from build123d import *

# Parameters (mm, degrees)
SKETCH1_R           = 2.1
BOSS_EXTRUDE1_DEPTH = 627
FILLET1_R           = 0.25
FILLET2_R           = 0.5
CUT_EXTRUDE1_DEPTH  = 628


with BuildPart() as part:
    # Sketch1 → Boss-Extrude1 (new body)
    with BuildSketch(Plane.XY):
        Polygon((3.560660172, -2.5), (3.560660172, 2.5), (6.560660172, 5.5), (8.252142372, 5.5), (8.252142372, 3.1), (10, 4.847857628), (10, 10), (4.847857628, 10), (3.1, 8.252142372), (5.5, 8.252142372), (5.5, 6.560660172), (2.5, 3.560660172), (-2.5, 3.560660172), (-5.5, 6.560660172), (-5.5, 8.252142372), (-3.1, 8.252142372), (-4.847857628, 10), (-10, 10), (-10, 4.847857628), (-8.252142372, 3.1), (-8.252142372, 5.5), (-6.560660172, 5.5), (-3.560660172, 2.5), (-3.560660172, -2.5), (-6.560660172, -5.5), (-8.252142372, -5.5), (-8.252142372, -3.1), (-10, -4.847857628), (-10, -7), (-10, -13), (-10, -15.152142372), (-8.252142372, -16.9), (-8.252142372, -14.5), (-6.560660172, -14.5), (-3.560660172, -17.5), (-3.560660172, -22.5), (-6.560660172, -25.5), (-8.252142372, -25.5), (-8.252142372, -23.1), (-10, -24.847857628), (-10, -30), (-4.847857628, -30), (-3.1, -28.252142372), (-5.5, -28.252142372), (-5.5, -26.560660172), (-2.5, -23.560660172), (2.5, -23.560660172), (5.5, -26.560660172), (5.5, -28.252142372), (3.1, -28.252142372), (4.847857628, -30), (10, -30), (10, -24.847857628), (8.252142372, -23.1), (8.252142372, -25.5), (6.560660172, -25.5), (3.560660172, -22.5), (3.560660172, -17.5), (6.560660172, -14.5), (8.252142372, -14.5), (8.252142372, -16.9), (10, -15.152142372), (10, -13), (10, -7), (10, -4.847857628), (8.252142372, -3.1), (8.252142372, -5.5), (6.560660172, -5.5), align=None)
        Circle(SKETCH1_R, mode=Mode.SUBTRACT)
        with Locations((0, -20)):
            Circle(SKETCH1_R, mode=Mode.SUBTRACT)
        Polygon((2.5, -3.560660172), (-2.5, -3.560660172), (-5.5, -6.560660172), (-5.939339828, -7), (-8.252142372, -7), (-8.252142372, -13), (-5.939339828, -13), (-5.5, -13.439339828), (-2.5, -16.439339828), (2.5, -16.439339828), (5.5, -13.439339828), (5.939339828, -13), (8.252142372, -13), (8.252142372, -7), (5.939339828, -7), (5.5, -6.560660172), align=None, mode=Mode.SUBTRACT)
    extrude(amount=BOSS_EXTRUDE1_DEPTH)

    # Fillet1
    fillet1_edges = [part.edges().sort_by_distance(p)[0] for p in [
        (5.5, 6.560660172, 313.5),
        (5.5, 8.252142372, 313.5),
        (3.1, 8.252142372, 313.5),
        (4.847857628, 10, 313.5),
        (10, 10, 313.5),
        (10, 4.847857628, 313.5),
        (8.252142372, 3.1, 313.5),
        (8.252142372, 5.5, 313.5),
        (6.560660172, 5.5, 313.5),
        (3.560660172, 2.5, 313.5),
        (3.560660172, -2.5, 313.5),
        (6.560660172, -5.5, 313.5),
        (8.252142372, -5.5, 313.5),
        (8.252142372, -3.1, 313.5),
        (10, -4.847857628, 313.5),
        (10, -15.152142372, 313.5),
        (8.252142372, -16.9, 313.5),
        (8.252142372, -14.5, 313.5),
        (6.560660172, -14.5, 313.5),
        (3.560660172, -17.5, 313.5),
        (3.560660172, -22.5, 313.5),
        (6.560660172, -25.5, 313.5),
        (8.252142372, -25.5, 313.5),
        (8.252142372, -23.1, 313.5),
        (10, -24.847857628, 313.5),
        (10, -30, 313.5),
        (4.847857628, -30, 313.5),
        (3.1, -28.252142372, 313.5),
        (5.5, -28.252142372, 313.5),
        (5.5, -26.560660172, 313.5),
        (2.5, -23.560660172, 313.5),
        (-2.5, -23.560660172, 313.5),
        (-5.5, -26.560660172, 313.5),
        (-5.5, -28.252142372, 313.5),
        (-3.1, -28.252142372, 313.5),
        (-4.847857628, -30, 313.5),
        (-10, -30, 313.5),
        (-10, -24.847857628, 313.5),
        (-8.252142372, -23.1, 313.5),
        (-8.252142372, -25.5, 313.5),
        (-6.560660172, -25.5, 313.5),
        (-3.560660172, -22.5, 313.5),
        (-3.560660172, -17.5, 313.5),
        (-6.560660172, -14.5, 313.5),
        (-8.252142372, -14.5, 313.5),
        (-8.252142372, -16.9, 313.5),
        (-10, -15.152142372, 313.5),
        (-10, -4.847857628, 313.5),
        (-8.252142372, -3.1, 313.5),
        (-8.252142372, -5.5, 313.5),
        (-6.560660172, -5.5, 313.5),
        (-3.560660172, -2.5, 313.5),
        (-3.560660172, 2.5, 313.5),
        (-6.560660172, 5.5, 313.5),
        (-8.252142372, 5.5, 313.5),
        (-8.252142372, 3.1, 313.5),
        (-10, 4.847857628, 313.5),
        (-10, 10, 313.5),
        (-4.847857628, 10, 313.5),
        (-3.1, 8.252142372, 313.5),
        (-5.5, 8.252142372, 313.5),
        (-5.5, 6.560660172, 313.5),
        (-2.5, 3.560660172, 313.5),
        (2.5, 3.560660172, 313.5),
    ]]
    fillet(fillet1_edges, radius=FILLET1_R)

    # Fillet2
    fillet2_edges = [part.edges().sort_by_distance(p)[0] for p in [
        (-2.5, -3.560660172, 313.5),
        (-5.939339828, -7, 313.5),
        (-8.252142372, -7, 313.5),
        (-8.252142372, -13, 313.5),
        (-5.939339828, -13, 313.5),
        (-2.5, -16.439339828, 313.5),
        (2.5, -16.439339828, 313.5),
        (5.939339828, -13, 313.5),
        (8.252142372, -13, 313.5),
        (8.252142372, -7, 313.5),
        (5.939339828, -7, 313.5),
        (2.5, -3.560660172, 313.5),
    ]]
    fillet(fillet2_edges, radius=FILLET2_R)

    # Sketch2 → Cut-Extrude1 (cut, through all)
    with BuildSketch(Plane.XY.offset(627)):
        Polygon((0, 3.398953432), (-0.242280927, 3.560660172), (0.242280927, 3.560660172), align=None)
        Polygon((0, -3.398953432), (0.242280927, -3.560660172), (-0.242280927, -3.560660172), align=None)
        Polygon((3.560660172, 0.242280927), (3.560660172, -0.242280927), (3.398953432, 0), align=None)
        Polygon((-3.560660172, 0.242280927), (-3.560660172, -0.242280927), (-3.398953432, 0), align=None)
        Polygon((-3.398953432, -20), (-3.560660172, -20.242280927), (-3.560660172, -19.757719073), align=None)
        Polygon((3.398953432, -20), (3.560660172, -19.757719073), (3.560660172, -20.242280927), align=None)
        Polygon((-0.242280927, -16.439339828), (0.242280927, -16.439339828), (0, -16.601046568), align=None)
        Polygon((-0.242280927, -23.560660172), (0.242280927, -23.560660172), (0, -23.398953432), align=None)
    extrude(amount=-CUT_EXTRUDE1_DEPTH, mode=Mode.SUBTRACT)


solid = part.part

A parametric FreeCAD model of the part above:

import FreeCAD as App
import Part
import Sketcher
from FreeCAD import Vector
Q = App.Units.Quantity


def edges_at(feature, points):
    """Names of the edges that pass closest to the given points."""
    edges = feature.Shape.Edges
    near = lambda p: min(range(len(edges)), key=lambda i: edges[i].distToShape(Part.Vertex(*p))[0])
    return sorted({f"Edge{near(p) + 1}" for p in points})


def add_polygon(sketch, points):
    """Adds a closed chain of lines whose ends are joined by coincident constraints."""
    first, n = sketch.GeometryCount, len(points)
    for a, b in zip(points, points[1:] + points[:1]):
        sketch.addGeometry(Part.LineSegment(App.Vector(*a, 0), App.Vector(*b, 0)), False)
    for i in range(n):
        sketch.addConstraint(Sketcher.Constraint("Coincident", first + i, 2, first + (i + 1) % n, 1))

doc = App.newDocument("Part")
params = doc.addObject("Spreadsheet::Sheet", "Params")
for row, (alias, value) in enumerate([
    ("sketch1_diameter", "4.2 mm"),
    ("sketch1_width", "5 mm"),
    ("sketch1_height", "6 mm"),
    ("sketch1_width2", "2.4 mm"),
    ("pad1_length", "627 mm"),
    ("fillet_radius", "0.25 mm"),
    ("fillet2_radius", "0.5 mm"),
], start=1):
    params.set(f"A{row}", alias)
    params.set(f"B{row}", "=" + value)
    params.setAlias(f"B{row}", alias)

body = doc.addObject("PartDesign::Body", "Body")

# Sketch on XY plane
sketch1 = body.newObject("Sketcher::SketchObject", "Sketch")
sketch1.AttachmentSupport = (doc.getObject("XY_Plane"), [""])
sketch1.MapMode = "FlatFace"
add_polygon(sketch1, [(3.6, -2.5), (3.6, 2.5), (6.6, 5.5), (8.3, 5.5), (8.3, 3.1), (10, 4.8), (10, 10), (4.8, 10), (3.1, 8.3), (5.5, 8.3), (5.5, 6.6), (2.5, 3.6), (-2.5, 3.6), (-5.5, 6.6), (-5.5, 8.3), (-3.1, 8.3), (-4.8, 10), (-10, 10), (-10, 4.8), (-8.3, 3.1), (-8.3, 5.5), (-6.6, 5.5), (-3.6, 2.5), (-3.6, -2.5), (-6.6, -5.5), (-8.3, -5.5), (-8.3, -3.1), (-10, -4.8), (-10, -15.2), (-8.3, -16.9), (-8.3, -14.5), (-6.6, -14.5), (-3.6, -17.5), (-3.6, -22.5), (-6.6, -25.5), (-8.3, -25.5), (-8.3, -23.1), (-10, -24.8), (-10, -30), (-4.8, -30), (-3.1, -28.3), (-5.5, -28.3), (-5.5, -26.6), (-2.5, -23.6), (2.5, -23.6), (5.5, -26.6), (5.5, -28.3), (3.1, -28.3), (4.8, -30), (10, -30), (10, -24.8), (8.3, -23.1), (8.3, -25.5), (6.6, -25.5), (3.6, -22.5), (3.6, -17.5), (6.6, -14.5), (8.3, -14.5), (8.3, -16.9), (10, -15.2), (10, -4.8), (8.3, -3.1), (8.3, -5.5), (6.6, -5.5)])  # lines 0-63
sketch1.addGeometry(Part.Circle(Vector(0, -20, 0), Vector(0, 0, 1), 2.1), False)  # 64
add_polygon(sketch1, [(-2.5, -3.6), (2.5, -3.6), (5.9, -7), (8.3, -7), (8.3, -13), (5.9, -13), (2.5, -16.4), (-2.5, -16.4), (-5.9, -13), (-8.3, -13), (-8.3, -7), (-5.9, -7)])  # lines 65-76
sketch1.addGeometry(Part.Circle(Vector(0, 0, 0), Vector(0, 0, 1), 2.1), False)  # 77
sketch1.addConstraint([
    Sketcher.Constraint("Vertical", 0),
    Sketcher.Constraint("Horizontal", 2),
    Sketcher.Constraint("Vertical", 3),
    Sketcher.Constraint("Vertical", 5),
    Sketcher.Constraint("Horizontal", 6),
    Sketcher.Constraint("Horizontal", 8),
    Sketcher.Constraint("Vertical", 9),
    Sketcher.Constraint("Horizontal", 11),
    Sketcher.Constraint("Vertical", 13),
    Sketcher.Constraint("Horizontal", 14),
    Sketcher.Constraint("Horizontal", 16),
    Sketcher.Constraint("Vertical", 17),
    Sketcher.Constraint("Vertical", 19),
    Sketcher.Constraint("Horizontal", 20),
    Sketcher.Constraint("Vertical", 22),
    Sketcher.Constraint("Horizontal", 24),
    Sketcher.Constraint("Vertical", 25),
    Sketcher.Constraint("Vertical", 27),
    Sketcher.Constraint("Vertical", 29),
    Sketcher.Constraint("Horizontal", 30),
    Sketcher.Constraint("Vertical", 32),
    Sketcher.Constraint("Horizontal", 34),
    Sketcher.Constraint("Vertical", 35),
    Sketcher.Constraint("Vertical", 37),
    Sketcher.Constraint("Horizontal", 38),
    Sketcher.Constraint("Horizontal", 40),
    Sketcher.Constraint("Vertical", 41),
    Sketcher.Constraint("Horizontal", 43),
    Sketcher.Constraint("Vertical", 45),
    Sketcher.Constraint("Horizontal", 46),
    Sketcher.Constraint("Horizontal", 48),
    Sketcher.Constraint("Vertical", 49),
    Sketcher.Constraint("Vertical", 51),
    Sketcher.Constraint("Horizontal", 52),
    Sketcher.Constraint("Vertical", 54),
    Sketcher.Constraint("Horizontal", 56),
    Sketcher.Constraint("Vertical", 57),
    Sketcher.Constraint("Vertical", 59),
    Sketcher.Constraint("Vertical", 61),
    Sketcher.Constraint("Horizontal", 62),
    Sketcher.Constraint("Horizontal", 65),
    Sketcher.Constraint("Horizontal", 67),
    Sketcher.Constraint("Vertical", 68),
    Sketcher.Constraint("Horizontal", 69),
    Sketcher.Constraint("Horizontal", 71),
    Sketcher.Constraint("Horizontal", 73),
    Sketcher.Constraint("Vertical", 74),
    Sketcher.Constraint("Horizontal", 75),
    Sketcher.Constraint("Coincident", 77, 3, -1, 1),
    Sketcher.Constraint("Equal", 64, 77),
    Sketcher.Constraint("Symmetric", 0, 2, 22, 2, -1, 1),
    Sketcher.Constraint("Symmetric", 1, 2, 23, 2, -1, 1),
    Sketcher.Constraint("Symmetric", 3, 2, 25, 2, -1, 1),
    Sketcher.Constraint("Symmetric", 4, 2, 26, 2, -1, 1),
    Sketcher.Constraint("Symmetric", 17, 2, 59, 2, -1, 1),
    Sketcher.Constraint("Symmetric", 18, 2, 60, 2, -1, 1),
    Sketcher.Constraint("Symmetric", 20, 2, 62, 2, -1, 1),
    Sketcher.Constraint("Symmetric", 11, 2, 65, 2, -1, 1),
    Sketcher.Constraint("Symmetric", 9, 2, 12, 2, -2),
    Sketcher.Constraint("Symmetric", 7, 2, 14, 2, -2),
    Sketcher.Constraint("Symmetric", 6, 2, 15, 2, -2),
    Sketcher.Constraint("Symmetric", 4, 2, 17, 2, -2),
    Sketcher.Constraint("Symmetric", 3, 2, 18, 2, -2),
    Sketcher.Constraint("Symmetric", 1, 2, 20, 2, -2),
    Sketcher.Constraint("Symmetric", 41, 2, 44, 2, -2),
    Sketcher.Constraint("Symmetric", 39, 2, 46, 2, -2),
    Sketcher.Constraint("Symmetric", 38, 2, 47, 2, -2),
    Sketcher.Constraint("Symmetric", 36, 2, 49, 2, -2),
    Sketcher.Constraint("Symmetric", 35, 2, 50, 2, -2),
    Sketcher.Constraint("Symmetric", 33, 2, 52, 2, -2),
    Sketcher.Constraint("Symmetric", 32, 2, 53, 2, -2),
    Sketcher.Constraint("Symmetric", 30, 2, 55, 2, -2),
    Sketcher.Constraint("Symmetric", 28, 2, 57, 2, -2),
    Sketcher.Constraint("Symmetric", 69, 2, 72, 2, -2),
    Sketcher.Constraint("Symmetric", 67, 2, 74, 2, -2),
    Sketcher.Constraint("PointOnObject", 64, 3, -2),
    Sketcher.Constraint("Parallel", 1, 4),
    Sketcher.Constraint("Parallel", 4, 7),
    Sketcher.Constraint("Parallel", 7, 10),
    Sketcher.Constraint("Perpendicular", 10, 12),
    Sketcher.Constraint("Parallel", 12, 15),
    Sketcher.Constraint("Parallel", 18, 21),
    Sketcher.Constraint("Perpendicular", 26, 28),
    Sketcher.Constraint("Parallel", 28, 31),
    Sketcher.Constraint("Perpendicular", 31, 33),
    Sketcher.Constraint("Parallel", 33, 36),
    Sketcher.Constraint("Parallel", 36, 39),
    Sketcher.Constraint("Parallel", 39, 42),
    Sketcher.Constraint("Perpendicular", 42, 44),
    Sketcher.Constraint("Perpendicular", 53, 55),
    Sketcher.Constraint("Parallel", 55, 58),
    Sketcher.Constraint("Parallel", 60, 63),
    Sketcher.Constraint("Parallel", 63, 66),
    Sketcher.Constraint("Perpendicular", 66, 70),
    Sketcher.Constraint("Perpendicular", 70, 72),
    Sketcher.Constraint("Perpendicular", 72, 76),
    Sketcher.Constraint("Vertical", 25, 2, 28, 2),
    Sketcher.Constraint("Vertical", 23, 2, 30, 2),
    Sketcher.Constraint("Vertical", 22, 2, 31, 2),
    Sketcher.Constraint("Vertical", 30, 2, 33, 2),
    Sketcher.Constraint("Vertical", 29, 2, 34, 2),
    Sketcher.Constraint("Vertical", 27, 2, 36, 2),
    Sketcher.Constraint("Vertical", 15, 2, 38, 2),
    Sketcher.Constraint("Vertical", 14, 2, 39, 2),
    Sketcher.Constraint("Vertical", 13, 2, 40, 2),
    Sketcher.Constraint("Vertical", 11, 2, 42, 2),
    Sketcher.Constraint("Vertical", 61, 2, 67, 2),
    Sketcher.Constraint("Vertical", 66, 2, 69, 2),
    Sketcher.Constraint("Vertical", 65, 2, 70, 2),
    Sketcher.Constraint("Vertical", 72, 2, 75, 2),
    Sketcher.Constraint("Equal", 71, 0),
    Sketcher.Constraint("Equal", 46, 3),
    Sketcher.Constraint("Equal", 48, 5),
    Sketcher.Constraint("Equal", 62, 9),
    Sketcher.Constraint("Equal", 25, 29),
    Sketcher.Constraint("Equal", 22, 32),
    Sketcher.Constraint("Equal", 29, 35),
    Sketcher.Constraint("Equal", 17, 37),
    Sketcher.Constraint("Equal", 13, 41),
    Sketcher.Constraint("Equal", 4, 7),
    Sketcher.Constraint("Equal", 1, 10),
    Sketcher.Constraint("Diameter", 64, Q("4.2 mm")),
    Sketcher.Constraint("DistanceX", 11, 2, 11, 1, Q("5 mm")),
    Sketcher.Constraint("DistanceY", 68, 2, 68, 1, Q("6 mm")),
    Sketcher.Constraint("DistanceX", 8, 1, 8, 2, Q("2.4 mm")),
    Sketcher.Constraint("DistanceY", 64, 3, -1, 1, Q("20 mm")),
    Sketcher.Constraint("DistanceX", -1, 1, 4, 2, Q("10 mm")),
    Sketcher.Constraint("DistanceY", 37, 2, -1, 1, Q("30 mm")),
    Sketcher.Constraint("DistanceY", 66, 2, -1, 1, Q("7 mm")),
    Sketcher.Constraint("DistanceY", -1, 1, 1, 2, Q("5.5 mm")),
    Sketcher.Constraint("Distance", 66, Q("4.863961 mm")),
    Sketcher.Constraint("DistanceX", 2, 1, 2, 2, Q("1.691482 mm")),
])
sketch1.setExpression("Constraints[197]", "Params.sketch1_diameter")
sketch1.setExpression("Constraints[198]", "Params.sketch1_width")
sketch1.setExpression("Constraints[199]", "Params.sketch1_height")
sketch1.setExpression("Constraints[200]", "Params.sketch1_width2")
pad1 = body.newObject("PartDesign::Pad", "Pad")
pad1.Profile = sketch1
pad1.setExpression("Length", "Params.pad1_length")
doc.recompute()

fillet = body.newObject("PartDesign::Fillet", "Fillet")
fillet.Base = (pad1, edges_at(pad1, [
    (5.5, 6.561, 313.5),
    (5.5, 8.252, 313.5),
    (3.1, 8.252, 313.5),
    (4.848, 10, 313.5),
    (10, 10, 313.5),
    (10, 4.848, 313.5),
    (8.252, 3.1, 313.5),
    (8.252, 5.5, 313.5),
    (6.561, 5.5, 313.5),
    (3.561, 2.5, 313.5),
    (3.561, -2.5, 313.5),
    (6.561, -5.5, 313.5),
    (8.252, -5.5, 313.5),
    (8.252, -3.1, 313.5),
    (10, -4.848, 313.5),
    (10, -15.152, 313.5),
    (8.252, -16.9, 313.5),
    (8.252, -14.5, 313.5),
    (6.561, -14.5, 313.5),
    (3.561, -17.5, 313.5),
    (3.561, -22.5, 313.5),
    (6.561, -25.5, 313.5),
    (8.252, -25.5, 313.5),
    (8.252, -23.1, 313.5),
    (10, -24.848, 313.5),
    (10, -30, 313.5),
    (4.848, -30, 313.5),
    (3.1, -28.252, 313.5),
    (5.5, -28.252, 313.5),
    (5.5, -26.561, 313.5),
    (2.5, -23.561, 313.5),
    (-2.5, -23.561, 313.5),
    (-5.5, -26.561, 313.5),
    (-5.5, -28.252, 313.5),
    (-3.1, -28.252, 313.5),
    (-4.848, -30, 313.5),
    (-10, -30, 313.5),
    (-10, -24.848, 313.5),
    (-8.252, -23.1, 313.5),
    (-8.252, -25.5, 313.5),
    (-6.561, -25.5, 313.5),
    (-3.561, -22.5, 313.5),
    (-3.561, -17.5, 313.5),
    (-6.561, -14.5, 313.5),
    (-8.252, -14.5, 313.5),
    (-8.252, -16.9, 313.5),
    (-10, -15.152, 313.5),
    (-10, -4.848, 313.5),
    (-8.252, -3.1, 313.5),
    (-8.252, -5.5, 313.5),
    (-6.561, -5.5, 313.5),
    (-3.561, -2.5, 313.5),
    (-3.561, 2.5, 313.5),
    (-6.561, 5.5, 313.5),
    (-8.252, 5.5, 313.5),
    (-8.252, 3.1, 313.5),
    (-10, 4.848, 313.5),
    (-10, 10, 313.5),
    (-4.848, 10, 313.5),
    (-3.1, 8.252, 313.5),
    (-5.5, 8.252, 313.5),
    (-5.5, 6.561, 313.5),
    (-2.5, 3.561, 313.5),
    (2.5, 3.561, 313.5),
]))
fillet.setExpression("Radius", "Params.fillet_radius")
doc.recompute()

fillet2 = body.newObject("PartDesign::Fillet", "Fillet001")
fillet2.Base = (fillet, edges_at(fillet, [
    (-2.5, -3.561, 313.5),
    (-5.939, -7, 313.5),
    (-8.252, -7, 313.5),
    (-8.252, -13, 313.5),
    (-5.939, -13, 313.5),
    (-2.5, -16.439, 313.5),
    (2.5, -16.439, 313.5),
    (5.939, -13, 313.5),
    (8.252, -13, 313.5),
    (8.252, -7, 313.5),
    (5.939, -7, 313.5),
    (2.5, -3.561, 313.5),
]))
fillet2.setExpression("Radius", "Params.fillet2_radius")

# Sketch on XY plane
sketch2 = body.newObject("Sketcher::SketchObject", "Sketch001")
sketch2.AttachmentSupport = (doc.getObject("XY_Plane"), [""])
sketch2.MapMode = "FlatFace"
sketch2.AttachmentOffset = App.Placement(Vector(0, 0, 627), App.Rotation())
add_polygon(sketch2, [(-0.24, 3.56), (0, 3.4), (0.24, 3.56)])  # lines 0-2
add_polygon(sketch2, [(0.24, -3.56), (0, -3.4), (-0.24, -3.56)])  # lines 3-5
add_polygon(sketch2, [(3.56, -0.24), (3.56, 0.24), (3.4, 0)])  # lines 6-8
add_polygon(sketch2, [(-3.56, 0.24), (-3.56, -0.24), (-3.4, 0)])  # lines 9-11
add_polygon(sketch2, [(-3.56, -20.24), (-3.4, -20), (-3.56, -19.76)])  # lines 12-14
add_polygon(sketch2, [(3.56, -19.76), (3.4, -20), (3.56, -20.24)])  # lines 15-17
add_polygon(sketch2, [(0.24, -16.44), (-0.24, -16.44), (0, -16.6)])  # lines 18-20
add_polygon(sketch2, [(-0.24, -23.56), (0.24, -23.56), (0, -23.4)])  # lines 21-23
sketch2.addConstraint([
    Sketcher.Constraint("Horizontal", 2),
    Sketcher.Constraint("Horizontal", 5),
    Sketcher.Constraint("Vertical", 6),
    Sketcher.Constraint("Vertical", 9),
    Sketcher.Constraint("Vertical", 14),
    Sketcher.Constraint("Vertical", 17),
    Sketcher.Constraint("Horizontal", 18),
    Sketcher.Constraint("Horizontal", 21),
    Sketcher.Constraint("Symmetric", 0, 2, 3, 2, -1, 1),
    Sketcher.Constraint("Symmetric", 1, 2, 4, 2, -1, 1),
    Sketcher.Constraint("Symmetric", 6, 2, 9, 2, -1, 1),
    Sketcher.Constraint("Symmetric", 7, 2, 10, 2, -1, 1),
    Sketcher.Constraint("Symmetric", 12, 2, 15, 2, -2),
    Sketcher.Constraint("Symmetric", 14, 2, 16, 2, -2),
    Sketcher.Constraint("PointOnObject", 0, 2, -2),
    Sketcher.Constraint("PointOnObject", 7, 2, -1),
    Sketcher.Constraint("PointOnObject", 19, 2, -2),
    Sketcher.Constraint("PointOnObject", 22, 2, -2),
    Sketcher.Constraint("Parallel", 0, 3),
    Sketcher.Constraint("Perpendicular", 3, 7),
    Sketcher.Constraint("Perpendicular", 4, 8),
    Sketcher.Constraint("Parallel", 8, 11),
    Sketcher.Constraint("Parallel", 10, 12),
    Sketcher.Constraint("Parallel", 11, 13),
    Sketcher.Constraint("Parallel", 12, 15),
    Sketcher.Constraint("Parallel", 13, 16),
    Sketcher.Constraint("Perpendicular", 15, 19),
    Sketcher.Constraint("Perpendicular", 16, 20),
    Sketcher.Constraint("Parallel", 19, 22),
    Sketcher.Constraint("Parallel", 20, 23),
    Sketcher.Constraint("Vertical", 10, 2, 12, 2),
    Sketcher.Constraint("Vertical", 11, 2, 13, 2),
    Sketcher.Constraint("Vertical", 4, 2, 18, 2),
    Sketcher.Constraint("Vertical", 20, 2, 21, 2),
    Sketcher.Constraint("Equal", 21, 6),
    Sketcher.Constraint("DistanceY", 12, 2, -1, 1, Q("20 mm")),
    Sketcher.Constraint("DistanceX", 2, 2, 2, 1, Q("0.484562 mm")),
    Sketcher.Constraint("Distance", 0, Q("0.291289 mm")),
    Sketcher.Constraint("DistanceY", -1, 1, 1, 2, Q("3.56066 mm")),
    Sketcher.Constraint("DistanceX", -1, 1, 6, 2, Q("3.56066 mm")),
    Sketcher.Constraint("DistanceY", 18, 2, -1, 1, Q("16.43934 mm")),
    Sketcher.Constraint("DistanceY", 21, 2, -1, 1, Q("23.56066 mm")),
])
pocket1 = body.newObject("PartDesign::Pocket", "Pocket")
pocket1.Profile = sketch2
pocket1.Type = "ThroughAll"

doc.recompute()
